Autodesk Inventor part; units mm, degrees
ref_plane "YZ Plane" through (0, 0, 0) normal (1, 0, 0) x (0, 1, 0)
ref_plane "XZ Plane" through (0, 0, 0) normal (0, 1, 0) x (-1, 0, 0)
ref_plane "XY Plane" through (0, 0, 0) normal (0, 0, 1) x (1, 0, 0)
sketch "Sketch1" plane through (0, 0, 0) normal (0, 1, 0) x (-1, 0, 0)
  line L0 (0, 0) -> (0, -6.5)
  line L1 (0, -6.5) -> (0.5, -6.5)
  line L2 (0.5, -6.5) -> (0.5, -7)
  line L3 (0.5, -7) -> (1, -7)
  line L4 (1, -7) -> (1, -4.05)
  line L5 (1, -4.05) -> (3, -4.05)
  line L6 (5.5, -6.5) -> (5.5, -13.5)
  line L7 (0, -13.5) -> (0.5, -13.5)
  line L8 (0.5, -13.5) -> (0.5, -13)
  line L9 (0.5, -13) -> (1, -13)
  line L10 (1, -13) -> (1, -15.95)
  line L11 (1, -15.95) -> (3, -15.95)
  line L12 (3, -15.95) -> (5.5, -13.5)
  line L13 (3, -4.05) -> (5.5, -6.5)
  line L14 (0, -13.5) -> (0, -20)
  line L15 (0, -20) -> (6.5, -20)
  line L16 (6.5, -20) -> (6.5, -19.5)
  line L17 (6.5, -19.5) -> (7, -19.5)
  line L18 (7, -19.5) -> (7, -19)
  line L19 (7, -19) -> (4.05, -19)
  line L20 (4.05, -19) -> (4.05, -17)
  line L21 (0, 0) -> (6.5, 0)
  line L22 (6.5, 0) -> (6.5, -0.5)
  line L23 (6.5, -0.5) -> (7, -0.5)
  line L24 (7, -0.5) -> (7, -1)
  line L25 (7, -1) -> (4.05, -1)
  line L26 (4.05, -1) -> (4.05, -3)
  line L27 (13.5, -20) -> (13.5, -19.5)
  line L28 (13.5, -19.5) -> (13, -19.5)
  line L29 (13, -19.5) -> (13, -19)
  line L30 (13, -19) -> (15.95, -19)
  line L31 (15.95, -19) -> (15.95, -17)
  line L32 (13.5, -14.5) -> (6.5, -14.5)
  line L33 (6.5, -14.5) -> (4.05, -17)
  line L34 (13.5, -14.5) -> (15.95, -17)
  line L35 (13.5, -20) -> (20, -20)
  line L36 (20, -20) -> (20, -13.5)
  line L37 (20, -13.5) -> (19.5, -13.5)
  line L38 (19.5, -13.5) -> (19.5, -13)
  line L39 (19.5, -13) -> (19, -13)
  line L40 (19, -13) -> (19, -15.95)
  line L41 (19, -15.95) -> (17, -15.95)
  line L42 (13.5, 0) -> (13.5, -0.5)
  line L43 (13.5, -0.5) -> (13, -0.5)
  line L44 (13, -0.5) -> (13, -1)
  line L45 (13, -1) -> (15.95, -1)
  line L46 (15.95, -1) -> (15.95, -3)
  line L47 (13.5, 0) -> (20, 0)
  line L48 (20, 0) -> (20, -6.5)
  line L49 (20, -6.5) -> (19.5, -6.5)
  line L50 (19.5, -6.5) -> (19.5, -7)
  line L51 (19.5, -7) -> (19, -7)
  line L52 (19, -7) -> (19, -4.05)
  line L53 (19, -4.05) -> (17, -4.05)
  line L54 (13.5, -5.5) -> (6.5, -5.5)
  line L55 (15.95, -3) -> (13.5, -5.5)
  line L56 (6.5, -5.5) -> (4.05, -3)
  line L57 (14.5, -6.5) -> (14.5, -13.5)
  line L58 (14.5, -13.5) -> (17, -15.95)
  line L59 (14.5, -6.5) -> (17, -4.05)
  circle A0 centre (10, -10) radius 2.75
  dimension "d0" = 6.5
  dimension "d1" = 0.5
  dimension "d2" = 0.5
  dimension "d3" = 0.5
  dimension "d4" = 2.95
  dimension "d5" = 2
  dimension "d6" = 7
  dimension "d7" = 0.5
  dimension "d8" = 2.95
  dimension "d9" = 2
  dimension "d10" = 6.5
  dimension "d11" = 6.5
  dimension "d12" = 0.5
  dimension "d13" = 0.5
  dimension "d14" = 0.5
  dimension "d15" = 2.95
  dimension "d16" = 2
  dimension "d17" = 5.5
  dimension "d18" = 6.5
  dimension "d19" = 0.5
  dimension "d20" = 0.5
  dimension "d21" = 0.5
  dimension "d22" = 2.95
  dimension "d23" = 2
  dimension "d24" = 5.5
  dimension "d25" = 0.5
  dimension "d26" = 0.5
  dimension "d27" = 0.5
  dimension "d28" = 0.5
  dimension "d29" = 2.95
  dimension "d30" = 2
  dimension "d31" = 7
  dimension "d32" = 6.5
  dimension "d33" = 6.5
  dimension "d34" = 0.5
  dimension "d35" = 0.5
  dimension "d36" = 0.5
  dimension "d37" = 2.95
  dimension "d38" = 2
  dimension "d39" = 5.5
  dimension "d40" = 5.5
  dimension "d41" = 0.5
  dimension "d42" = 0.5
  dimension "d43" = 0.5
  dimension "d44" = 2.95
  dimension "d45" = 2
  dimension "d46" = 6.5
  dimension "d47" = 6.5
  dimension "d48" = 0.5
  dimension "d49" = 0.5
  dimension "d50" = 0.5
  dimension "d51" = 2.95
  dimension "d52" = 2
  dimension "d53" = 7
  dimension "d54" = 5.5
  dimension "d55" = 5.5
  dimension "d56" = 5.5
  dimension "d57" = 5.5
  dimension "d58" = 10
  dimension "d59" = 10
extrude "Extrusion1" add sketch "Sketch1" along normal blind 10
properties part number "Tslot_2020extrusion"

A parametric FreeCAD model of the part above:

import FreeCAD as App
import Part
import Sketcher
from FreeCAD import Vector
Q = App.Units.Quantity

doc = App.newDocument("Part")
body = doc.addObject("PartDesign::Body", "Body")

# Sketch on XZ plane
sketch1 = body.newObject("Sketcher::SketchObject", "Sketch")
sketch1.AttachmentSupport = (doc.getObject("XZ_Plane"), [""])
sketch1.MapMode = "FlatFace"
sketch1.addGeometry(Part.LineSegment(Vector(-6.5, 0, 0), Vector(0, 0, 0)), False)
sketch1.addGeometry(Part.LineSegment(Vector(0, 0, 0), Vector(0, -6.5, 0)), False)
sketch1.addGeometry(Part.LineSegment(Vector(0, -6.5, 0), Vector(-0.5, -6.5, 0)), False)
sketch1.addGeometry(Part.LineSegment(Vector(-0.5, -6.5, 0), Vector(-0.5, -7, 0)), False)
sketch1.addGeometry(Part.LineSegment(Vector(-0.5, -7, 0), Vector(-1, -7, 0)), False)
sketch1.addGeometry(Part.LineSegment(Vector(-1, -7, 0), Vector(-1, -4, 0)), False)
sketch1.addGeometry(Part.LineSegment(Vector(-1, -4, 0), Vector(-3, -4, 0)), False)
sketch1.addGeometry(Part.LineSegment(Vector(-3, -4, 0), Vector(-5.5, -6.5, 0)), False)
sketch1.addGeometry(Part.LineSegment(Vector(-5.5, -6.5, 0), Vector(-5.5, -13.5, 0)), False)
sketch1.addGeometry(Part.LineSegment(Vector(-5.5, -13.5, 0), Vector(-3, -15.9, 0)), False)
sketch1.addGeometry(Part.LineSegment(Vector(-3, -15.9, 0), Vector(-1, -15.9, 0)), False)
sketch1.addGeometry(Part.LineSegment(Vector(-1, -15.9, 0), Vector(-1, -13, 0)), False)
sketch1.addGeometry(Part.LineSegment(Vector(-1, -13, 0), Vector(-0.5, -13, 0)), False)
sketch1.addGeometry(Part.LineSegment(Vector(-0.5, -13, 0), Vector(-0.5, -13.5, 0)), False)
sketch1.addGeometry(Part.LineSegment(Vector(-0.5, -13.5, 0), Vector(0, -13.5, 0)), False)
sketch1.addGeometry(Part.LineSegment(Vector(0, -13.5, 0), Vector(0, -20, 0)), False)
sketch1.addGeometry(Part.LineSegment(Vector(0, -20, 0), Vector(-6.5, -20, 0)), False)
sketch1.addGeometry(Part.LineSegment(Vector(-6.5, -20, 0), Vector(-6.5, -19.5, 0)), False)
sketch1.addGeometry(Part.LineSegment(Vector(-6.5, -19.5, 0), Vector(-7, -19.5, 0)), False)
sketch1.addGeometry(Part.LineSegment(Vector(-7, -19.5, 0), Vector(-7, -19, 0)), False)
sketch1.addGeometry(Part.LineSegment(Vector(-7, -19, 0), Vector(-4, -19, 0)), False)
sketch1.addGeometry(Part.LineSegment(Vector(-4, -19, 0), Vector(-4, -17, 0)), False)
sketch1.addGeometry(Part.LineSegment(Vector(-4, -17, 0), Vector(-6.5, -14.5, 0)), False)
sketch1.addGeometry(Part.LineSegment(Vector(-6.5, -14.5, 0), Vector(-13.5, -14.5, 0)), False)
sketch1.addGeometry(Part.LineSegment(Vector(-13.5, -14.5, 0), Vector(-15.9, -17, 0)), False)
sketch1.addGeometry(Part.LineSegment(Vector(-15.9, -17, 0), Vector(-15.9, -19, 0)), False)
sketch1.addGeometry(Part.LineSegment(Vector(-15.9, -19, 0), Vector(-13, -19, 0)), False)
sketch1.addGeometry(Part.LineSegment(Vector(-13, -19, 0), Vector(-13, -19.5, 0)), False)
sketch1.addGeometry(Part.LineSegment(Vector(-13, -19.5, 0), Vector(-13.5, -19.5, 0)), False)
sketch1.addGeometry(Part.LineSegment(Vector(-13.5, -19.5, 0), Vector(-13.5, -20, 0)), False)
sketch1.addGeometry(Part.LineSegment(Vector(-13.5, -20, 0), Vector(-20, -20, 0)), False)
sketch1.addGeometry(Part.LineSegment(Vector(-20, -20, 0), Vector(-20, -13.5, 0)), False)
sketch1.addGeometry(Part.LineSegment(Vector(-20, -13.5, 0), Vector(-19.5, -13.5, 0)), False)
sketch1.addGeometry(Part.LineSegment(Vector(-19.5, -13.5, 0), Vector(-19.5, -13, 0)), False)
sketch1.addGeometry(Part.LineSegment(Vector(-19.5, -13, 0), Vector(-19, -13, 0)), False)
sketch1.addGeometry(Part.LineSegment(Vector(-19, -13, 0), Vector(-19, -15.9, 0)), False)
sketch1.addGeometry(Part.LineSegment(Vector(-19, -15.9, 0), Vector(-17, -15.9, 0)), False)
sketch1.addGeometry(Part.LineSegment(Vector(-17, -15.9, 0), Vector(-14.5, -13.5, 0)), False)
sketch1.addGeometry(Part.LineSegment(Vector(-14.5, -13.5, 0), Vector(-14.5, -6.5, 0)), False)
sketch1.addGeometry(Part.LineSegment(Vector(-14.5, -6.5, 0), Vector(-17, -4, 0)), False)
sketch1.addGeometry(Part.LineSegment(Vector(-17, -4, 0), Vector(-19, -4, 0)), False)
sketch1.addGeometry(Part.LineSegment(Vector(-19, -4, 0), Vector(-19, -7, 0)), False)
sketch1.addGeometry(Part.LineSegment(Vector(-19, -7, 0), Vector(-19.5, -7, 0)), False)
sketch1.addGeometry(Part.LineSegment(Vector(-19.5, -7, 0), Vector(-19.5, -6.5, 0)), False)
sketch1.addGeometry(Part.LineSegment(Vector(-19.5, -6.5, 0), Vector(-20, -6.5, 0)), False)
sketch1.addGeometry(Part.LineSegment(Vector(-20, -6.5, 0), Vector(-20, 0, 0)), False)
sketch1.addGeometry(Part.LineSegment(Vector(-20, 0, 0), Vector(-13.5, 0, 0)), False)
sketch1.addGeometry(Part.LineSegment(Vector(-13.5, 0, 0), Vector(-13.5, -0.5, 0)), False)
sketch1.addGeometry(Part.LineSegment(Vector(-13.5, -0.5, 0), Vector(-13, -0.5, 0)), False)
sketch1.addGeometry(Part.LineSegment(Vector(-13, -0.5, 0), Vector(-13, -1, 0)), False)
sketch1.addGeometry(Part.LineSegment(Vector(-13, -1, 0), Vector(-15.9, -1, 0)), False)
sketch1.addGeometry(Part.LineSegment(Vector(-15.9, -1, 0), Vector(-15.9, -3, 0)), False)
sketch1.addGeometry(Part.LineSegment(Vector(-15.9, -3, 0), Vector(-13.5, -5.5, 0)), False)
sketch1.addGeometry(Part.LineSegment(Vector(-13.5, -5.5, 0), Vector(-6.5, -5.5, 0)), False)
sketch1.addGeometry(Part.LineSegment(Vector(-6.5, -5.5, 0), Vector(-4, -3, 0)), False)
sketch1.addGeometry(Part.LineSegment(Vector(-4, -3, 0), Vector(-4, -1, 0)), False)
sketch1.addGeometry(Part.LineSegment(Vector(-4, -1, 0), Vector(-7, -1, 0)), False)
sketch1.addGeometry(Part.LineSegment(Vector(-7, -1, 0), Vector(-7, -0.5, 0)), False)
sketch1.addGeometry(Part.LineSegment(Vector(-7, -0.5, 0), Vector(-6.5, -0.5, 0)), False)
sketch1.addGeometry(Part.LineSegment(Vector(-6.5, -0.5, 0), Vector(-6.5, 0, 0)), False)
sketch1.addGeometry(Part.Circle(Vector(-10, -10, 0), Vector(0, 0, 1), 2.8), False)
sketch1.addConstraint(Sketcher.Constraint("Coincident", 0, 2, 1, 1))
sketch1.addConstraint(Sketcher.Constraint("Coincident", 1, 2, 2, 1))
sketch1.addConstraint(Sketcher.Constraint("Coincident", 2, 2, 3, 1))
sketch1.addConstraint(Sketcher.Constraint("Coincident", 3, 2, 4, 1))
sketch1.addConstraint(Sketcher.Constraint("Coincident", 4, 2, 5, 1))
sketch1.addConstraint(Sketcher.Constraint("Coincident", 5, 2, 6, 1))
sketch1.addConstraint(Sketcher.Constraint("Coincident", 6, 2, 7, 1))
sketch1.addConstraint(Sketcher.Constraint("Coincident", 7, 2, 8, 1))
sketch1.addConstraint(Sketcher.Constraint("Coincident", 8, 2, 9, 1))
sketch1.addConstraint(Sketcher.Constraint("Coincident", 9, 2, 10, 1))
sketch1.addConstraint(Sketcher.Constraint("Coincident", 10, 2, 11, 1))
sketch1.addConstraint(Sketcher.Constraint("Coincident", 11, 2, 12, 1))
sketch1.addConstraint(Sketcher.Constraint("Coincident", 12, 2, 13, 1))
sketch1.addConstraint(Sketcher.Constraint("Coincident", 13, 2, 14, 1))
sketch1.addConstraint(Sketcher.Constraint("Coincident", 14, 2, 15, 1))
sketch1.addConstraint(Sketcher.Constraint("Coincident", 15, 2, 16, 1))
sketch1.addConstraint(Sketcher.Constraint("Coincident", 16, 2, 17, 1))
sketch1.addConstraint(Sketcher.Constraint("Coincident", 17, 2, 18, 1))
sketch1.addConstraint(Sketcher.Constraint("Coincident", 18, 2, 19, 1))
sketch1.addConstraint(Sketcher.Constraint("Coincident", 19, 2, 20, 1))
sketch1.addConstraint(Sketcher.Constraint("Coincident", 20, 2, 21, 1))
sketch1.addConstraint(Sketcher.Constraint("Coincident", 21, 2, 22, 1))
sketch1.addConstraint(Sketcher.Constraint("Coincident", 22, 2, 23, 1))
sketch1.addConstraint(Sketcher.Constraint("Coincident", 23, 2, 24, 1))
sketch1.addConstraint(Sketcher.Constraint("Coincident", 24, 2, 25, 1))
sketch1.addConstraint(Sketcher.Constraint("Coincident", 25, 2, 26, 1))
sketch1.addConstraint(Sketcher.Constraint("Coincident", 26, 2, 27, 1))
sketch1.addConstraint(Sketcher.Constraint("Coincident", 27, 2, 28, 1))
sketch1.addConstraint(Sketcher.Constraint("Coincident", 28, 2, 29, 1))
sketch1.addConstraint(Sketcher.Constraint("Coincident", 29, 2, 30, 1))
sketch1.addConstraint(Sketcher.Constraint("Coincident", 30, 2, 31, 1))
sketch1.addConstraint(Sketcher.Constraint("Coincident", 31, 2, 32, 1))
sketch1.addConstraint(Sketcher.Constraint("Coincident", 32, 2, 33, 1))
sketch1.addConstraint(Sketcher.Constraint("Coincident", 33, 2, 34, 1))
sketch1.addConstraint(Sketcher.Constraint("Coincident", 34, 2, 35, 1))
sketch1.addConstraint(Sketcher.Constraint("Coincident", 35, 2, 36, 1))
sketch1.addConstraint(Sketcher.Constraint("Coincident", 36, 2, 37, 1))
sketch1.addConstraint(Sketcher.Constraint("Coincident", 37, 2, 38, 1))
sketch1.addConstraint(Sketcher.Constraint("Coincident", 38, 2, 39, 1))
sketch1.addConstraint(Sketcher.Constraint("Coincident", 39, 2, 40, 1))
sketch1.addConstraint(Sketcher.Constraint("Coincident", 40, 2, 41, 1))
sketch1.addConstraint(Sketcher.Constraint("Coincident", 41, 2, 42, 1))
sketch1.addConstraint(Sketcher.Constraint("Coincident", 42, 2, 43, 1))
sketch1.addConstraint(Sketcher.Constraint("Coincident", 43, 2, 44, 1))
sketch1.addConstraint(Sketcher.Constraint("Coincident", 44, 2, 45, 1))
sketch1.addConstraint(Sketcher.Constraint("Coincident", 45, 2, 46, 1))
sketch1.addConstraint(Sketcher.Constraint("Coincident", 46, 2, 47, 1))
sketch1.addConstraint(Sketcher.Constraint("Coincident", 47, 2, 48, 1))
sketch1.addConstraint(Sketcher.Constraint("Coincident", 48, 2, 49, 1))
sketch1.addConstraint(Sketcher.Constraint("Coincident", 49, 2, 50, 1))
sketch1.addConstraint(Sketcher.Constraint("Coincident", 50, 2, 51, 1))
sketch1.addConstraint(Sketcher.Constraint("Coincident", 51, 2, 52, 1))
sketch1.addConstraint(Sketcher.Constraint("Coincident", 52, 2, 53, 1))
sketch1.addConstraint(Sketcher.Constraint("Coincident", 53, 2, 54, 1))
sketch1.addConstraint(Sketcher.Constraint("Coincident", 54, 2, 55, 1))
sketch1.addConstraint(Sketcher.Constraint("Coincident", 55, 2, 56, 1))
sketch1.addConstraint(Sketcher.Constraint("Coincident", 56, 2, 57, 1))
sketch1.addConstraint(Sketcher.Constraint("Coincident", 57, 2, 58, 1))
sketch1.addConstraint(Sketcher.Constraint("Coincident", 58, 2, 59, 1))
sketch1.addConstraint(Sketcher.Constraint("Coincident", 59, 2, 0, 1))
sketch1.addConstraint(Sketcher.Constraint("Horizontal", 0))
sketch1.addConstraint(Sketcher.Constraint("Vertical", 1))
sketch1.addConstraint(Sketcher.Constraint("Horizontal", 2))
sketch1.addConstraint(Sketcher.Constraint("Vertical", 3))
sketch1.addConstraint(Sketcher.Constraint("Horizontal", 4))
sketch1.addConstraint(Sketcher.Constraint("Vertical", 5))
sketch1.addConstraint(Sketcher.Constraint("Horizontal", 6))
sketch1.addConstraint(Sketcher.Constraint("Vertical", 8))
sketch1.addConstraint(Sketcher.Constraint("Horizontal", 10))
sketch1.addConstraint(Sketcher.Constraint("Vertical", 11))
sketch1.addConstraint(Sketcher.Constraint("Horizontal", 12))
sketch1.addConstraint(Sketcher.Constraint("Vertical", 13))
sketch1.addConstraint(Sketcher.Constraint("Horizontal", 14))
sketch1.addConstraint(Sketcher.Constraint("Vertical", 15))
sketch1.addConstraint(Sketcher.Constraint("Horizontal", 16))
sketch1.addConstraint(Sketcher.Constraint("Vertical", 17))
sketch1.addConstraint(Sketcher.Constraint("Horizontal", 18))
sketch1.addConstraint(Sketcher.Constraint("Vertical", 19))
sketch1.addConstraint(Sketcher.Constraint("Horizontal", 20))
sketch1.addConstraint(Sketcher.Constraint("Vertical", 21))
sketch1.addConstraint(Sketcher.Constraint("Horizontal", 23))
sketch1.addConstraint(Sketcher.Constraint("Vertical", 25))
sketch1.addConstraint(Sketcher.Constraint("Horizontal", 26))
sketch1.addConstraint(Sketcher.Constraint("Vertical", 27))
sketch1.addConstraint(Sketcher.Constraint("Horizontal", 28))
sketch1.addConstraint(Sketcher.Constraint("Vertical", 29))
sketch1.addConstraint(Sketcher.Constraint("Horizontal", 30))
sketch1.addConstraint(Sketcher.Constraint("Vertical", 31))
sketch1.addConstraint(Sketcher.Constraint("Horizontal", 32))
sketch1.addConstraint(Sketcher.Constraint("Vertical", 33))
sketch1.addConstraint(Sketcher.Constraint("Horizontal", 34))
sketch1.addConstraint(Sketcher.Constraint("Vertical", 35))
sketch1.addConstraint(Sketcher.Constraint("Horizontal", 36))
sketch1.addConstraint(Sketcher.Constraint("Vertical", 38))
sketch1.addConstraint(Sketcher.Constraint("Horizontal", 40))
sketch1.addConstraint(Sketcher.Constraint("Vertical", 41))
sketch1.addConstraint(Sketcher.Constraint("Horizontal", 42))
sketch1.addConstraint(Sketcher.Constraint("Vertical", 43))
sketch1.addConstraint(Sketcher.Constraint("Horizontal", 44))
sketch1.addConstraint(Sketcher.Constraint("Vertical", 45))
sketch1.addConstraint(Sketcher.Constraint("Horizontal", 46))
sketch1.addConstraint(Sketcher.Constraint("Vertical", 47))
sketch1.addConstraint(Sketcher.Constraint("Horizontal", 48))
sketch1.addConstraint(Sketcher.Constraint("Vertical", 49))
sketch1.addConstraint(Sketcher.Constraint("Horizontal", 50))
sketch1.addConstraint(Sketcher.Constraint("Vertical", 51))
sketch1.addConstraint(Sketcher.Constraint("Horizontal", 53))
sketch1.addConstraint(Sketcher.Constraint("Vertical", 55))
sketch1.addConstraint(Sketcher.Constraint("Horizontal", 56))
sketch1.addConstraint(Sketcher.Constraint("Vertical", 57))
sketch1.addConstraint(Sketcher.Constraint("Horizontal", 58))
sketch1.addConstraint(Sketcher.Constraint("Vertical", 59))
sketch1.addConstraint(Sketcher.Constraint("Coincident", 0, 2, -1, 1))
sketch1.addConstraint(Sketcher.Constraint("PointOnObject", 14, 2, -2))
sketch1.addConstraint(Sketcher.Constraint("PointOnObject", 45, 2, -1))
sketch1.addConstraint(Sketcher.Constraint("Perpendicular", 7, 22))
sketch1.addConstraint(Sketcher.Constraint("Perpendicular", 9, 24))
sketch1.addConstraint(Sketcher.Constraint("Perpendicular", 22, 37))
sketch1.addConstraint(Sketcher.Constraint("Perpendicular", 24, 39))
sketch1.addConstraint(Sketcher.Constraint("Perpendicular", 37, 52))
sketch1.addConstraint(Sketcher.Constraint("Perpendicular", 39, 54))
sketch1.addConstraint(Sketcher.Constraint("Horizontal", 2, 2, 7, 2))
sketch1.addConstraint(Sketcher.Constraint("Horizontal", 8, 2, 13, 2))
sketch1.addConstraint(Sketcher.Constraint("Horizontal", 21, 2, 24, 2))
sketch1.addConstraint(Sketcher.Constraint("Horizontal", 20, 2, 25, 2))
sketch1.addConstraint(Sketcher.Constraint("Horizontal", 18, 2, 27, 2))
sketch1.addConstraint(Sketcher.Constraint("Horizontal", 16, 2, 29, 2))
sketch1.addConstraint(Sketcher.Constraint("Horizontal", 14, 2, 31, 2))
sketch1.addConstraint(Sketcher.Constraint("Horizontal", 12, 2, 33, 2))
sketch1.addConstraint(Sketcher.Constraint("Horizontal", 10, 2, 35, 2))
sketch1.addConstraint(Sketcher.Constraint("Horizontal", 32, 2, 37, 2))
sketch1.addConstraint(Sketcher.Constraint("Horizontal", 7, 2, 38, 2))
sketch1.addConstraint(Sketcher.Constraint("Horizontal", 6, 2, 39, 2))
sketch1.addConstraint(Sketcher.Constraint("Horizontal", 4, 2, 41, 2))
sketch1.addConstraint(Sketcher.Constraint("Horizontal", 38, 2, 43, 2))
sketch1.addConstraint(Sketcher.Constraint("Horizontal", 51, 2, 54, 2))
sketch1.addConstraint(Sketcher.Constraint("Horizontal", 50, 2, 55, 2))
sketch1.addConstraint(Sketcher.Constraint("Horizontal", 48, 2, 57, 2))
sketch1.addConstraint(Sketcher.Constraint("Vertical", 6, 2, 9, 2))
sketch1.addConstraint(Sketcher.Constraint("Vertical", 5, 2, 10, 2))
sketch1.addConstraint(Sketcher.Constraint("Vertical", 3, 2, 12, 2))
sketch1.addConstraint(Sketcher.Constraint("Vertical", 17, 2, 22, 2))
sketch1.addConstraint(Sketcher.Constraint("Vertical", 23, 2, 28, 2))
sketch1.addConstraint(Sketcher.Constraint("Vertical", 36, 2, 39, 2))
sketch1.addConstraint(Sketcher.Constraint("Vertical", 35, 2, 40, 2))
sketch1.addConstraint(Sketcher.Constraint("Vertical", 33, 2, 42, 2))
sketch1.addConstraint(Sketcher.Constraint("Vertical", 31, 2, 44, 2))
sketch1.addConstraint(Sketcher.Constraint("Vertical", 29, 2, 46, 2))
sketch1.addConstraint(Sketcher.Constraint("Vertical", 27, 2, 48, 2))
sketch1.addConstraint(Sketcher.Constraint("Vertical", 25, 2, 50, 2))
sketch1.addConstraint(Sketcher.Constraint("Vertical", 47, 2, 52, 2))
sketch1.addConstraint(Sketcher.Constraint("Vertical", 22, 2, 53, 2))
sketch1.addConstraint(Sketcher.Constraint("Vertical", 19, 2, 56, 2))
sketch1.addConstraint(Sketcher.Constraint("Vertical", 53, 2, 58, 2))
sketch1.addConstraint(Sketcher.Constraint("Equal", 2, 4))
sketch1.addConstraint(Sketcher.Constraint("Equal", 14, 18))
sketch1.addConstraint(Sketcher.Constraint("Equal", 20, 26))
sketch1.addConstraint(Sketcher.Constraint("Equal", 16, 30))
sketch1.addConstraint(Sketcher.Constraint("Equal", 28, 32))
sketch1.addConstraint(Sketcher.Constraint("Equal", 32, 34))
sketch1.addConstraint(Sketcher.Constraint("Equal", 10, 36))
sketch1.addConstraint(Sketcher.Constraint("Equal", 46, 1))
sketch1.addConstraint(Sketcher.Constraint("Equal", 58, 3))
sketch1.addConstraint(Sketcher.Constraint("Equal", 56, 5))
sketch1.addConstraint(Sketcher.Constraint("Equal", 53, 8))
sketch1.addConstraint(Sketcher.Constraint("Equal", 5, 11))
sketch1.addConstraint(Sketcher.Constraint("Equal", 1, 15))
sketch1.addConstraint(Sketcher.Constraint("Equal", 13, 17))
sketch1.addConstraint(Sketcher.Constraint("Equal", 17, 19))
sketch1.addConstraint(Sketcher.Constraint("Equal", 40, 21))
sketch1.addConstraint(Sketcher.Constraint("Equal", 43, 47))
sketch1.addConstraint(Sketcher.Constraint("Equal", 47, 49))
sketch1.addConstraint(Sketcher.Constraint("Equal", 25, 51))
sketch1.addConstraint(Sketcher.Constraint("Diameter", 60, Q("5.5 mm")))
sketch1.addConstraint(Sketcher.Constraint("DistanceX", 6, 2, 6, 1, Q("2 mm")))
sketch1.addConstraint(Sketcher.Constraint("DistanceX", 23, 2, 23, 1, Q("7 mm")))
sketch1.addConstraint(Sketcher.Constraint("DistanceX", 0, 1, 0, 2, Q("6.5 mm")))
sketch1.addConstraint(Sketcher.Constraint("DistanceX", 2, 2, 2, 1, Q("0.5 mm")))
sketch1.addConstraint(Sketcher.Constraint("DistanceX", 60, 3, -1, 1, Q("10 mm")))
sketch1.addConstraint(Sketcher.Constraint("DistanceY", 60, 3, -1, 1, Q("10 mm")))
sketch1.addConstraint(Sketcher.Constraint("DistanceX", 20, 1, 20, 2, Q("2.95 mm")))
sketch1.addConstraint(Sketcher.Constraint("DistanceX", 7, 2, -1, 1, Q("5.5 mm")))
pad1 = body.newObject("PartDesign::Pad", "Pad")
pad1.Profile = sketch1
pad1.Length = 10
pad1.Reversed = True

doc.recompute()
